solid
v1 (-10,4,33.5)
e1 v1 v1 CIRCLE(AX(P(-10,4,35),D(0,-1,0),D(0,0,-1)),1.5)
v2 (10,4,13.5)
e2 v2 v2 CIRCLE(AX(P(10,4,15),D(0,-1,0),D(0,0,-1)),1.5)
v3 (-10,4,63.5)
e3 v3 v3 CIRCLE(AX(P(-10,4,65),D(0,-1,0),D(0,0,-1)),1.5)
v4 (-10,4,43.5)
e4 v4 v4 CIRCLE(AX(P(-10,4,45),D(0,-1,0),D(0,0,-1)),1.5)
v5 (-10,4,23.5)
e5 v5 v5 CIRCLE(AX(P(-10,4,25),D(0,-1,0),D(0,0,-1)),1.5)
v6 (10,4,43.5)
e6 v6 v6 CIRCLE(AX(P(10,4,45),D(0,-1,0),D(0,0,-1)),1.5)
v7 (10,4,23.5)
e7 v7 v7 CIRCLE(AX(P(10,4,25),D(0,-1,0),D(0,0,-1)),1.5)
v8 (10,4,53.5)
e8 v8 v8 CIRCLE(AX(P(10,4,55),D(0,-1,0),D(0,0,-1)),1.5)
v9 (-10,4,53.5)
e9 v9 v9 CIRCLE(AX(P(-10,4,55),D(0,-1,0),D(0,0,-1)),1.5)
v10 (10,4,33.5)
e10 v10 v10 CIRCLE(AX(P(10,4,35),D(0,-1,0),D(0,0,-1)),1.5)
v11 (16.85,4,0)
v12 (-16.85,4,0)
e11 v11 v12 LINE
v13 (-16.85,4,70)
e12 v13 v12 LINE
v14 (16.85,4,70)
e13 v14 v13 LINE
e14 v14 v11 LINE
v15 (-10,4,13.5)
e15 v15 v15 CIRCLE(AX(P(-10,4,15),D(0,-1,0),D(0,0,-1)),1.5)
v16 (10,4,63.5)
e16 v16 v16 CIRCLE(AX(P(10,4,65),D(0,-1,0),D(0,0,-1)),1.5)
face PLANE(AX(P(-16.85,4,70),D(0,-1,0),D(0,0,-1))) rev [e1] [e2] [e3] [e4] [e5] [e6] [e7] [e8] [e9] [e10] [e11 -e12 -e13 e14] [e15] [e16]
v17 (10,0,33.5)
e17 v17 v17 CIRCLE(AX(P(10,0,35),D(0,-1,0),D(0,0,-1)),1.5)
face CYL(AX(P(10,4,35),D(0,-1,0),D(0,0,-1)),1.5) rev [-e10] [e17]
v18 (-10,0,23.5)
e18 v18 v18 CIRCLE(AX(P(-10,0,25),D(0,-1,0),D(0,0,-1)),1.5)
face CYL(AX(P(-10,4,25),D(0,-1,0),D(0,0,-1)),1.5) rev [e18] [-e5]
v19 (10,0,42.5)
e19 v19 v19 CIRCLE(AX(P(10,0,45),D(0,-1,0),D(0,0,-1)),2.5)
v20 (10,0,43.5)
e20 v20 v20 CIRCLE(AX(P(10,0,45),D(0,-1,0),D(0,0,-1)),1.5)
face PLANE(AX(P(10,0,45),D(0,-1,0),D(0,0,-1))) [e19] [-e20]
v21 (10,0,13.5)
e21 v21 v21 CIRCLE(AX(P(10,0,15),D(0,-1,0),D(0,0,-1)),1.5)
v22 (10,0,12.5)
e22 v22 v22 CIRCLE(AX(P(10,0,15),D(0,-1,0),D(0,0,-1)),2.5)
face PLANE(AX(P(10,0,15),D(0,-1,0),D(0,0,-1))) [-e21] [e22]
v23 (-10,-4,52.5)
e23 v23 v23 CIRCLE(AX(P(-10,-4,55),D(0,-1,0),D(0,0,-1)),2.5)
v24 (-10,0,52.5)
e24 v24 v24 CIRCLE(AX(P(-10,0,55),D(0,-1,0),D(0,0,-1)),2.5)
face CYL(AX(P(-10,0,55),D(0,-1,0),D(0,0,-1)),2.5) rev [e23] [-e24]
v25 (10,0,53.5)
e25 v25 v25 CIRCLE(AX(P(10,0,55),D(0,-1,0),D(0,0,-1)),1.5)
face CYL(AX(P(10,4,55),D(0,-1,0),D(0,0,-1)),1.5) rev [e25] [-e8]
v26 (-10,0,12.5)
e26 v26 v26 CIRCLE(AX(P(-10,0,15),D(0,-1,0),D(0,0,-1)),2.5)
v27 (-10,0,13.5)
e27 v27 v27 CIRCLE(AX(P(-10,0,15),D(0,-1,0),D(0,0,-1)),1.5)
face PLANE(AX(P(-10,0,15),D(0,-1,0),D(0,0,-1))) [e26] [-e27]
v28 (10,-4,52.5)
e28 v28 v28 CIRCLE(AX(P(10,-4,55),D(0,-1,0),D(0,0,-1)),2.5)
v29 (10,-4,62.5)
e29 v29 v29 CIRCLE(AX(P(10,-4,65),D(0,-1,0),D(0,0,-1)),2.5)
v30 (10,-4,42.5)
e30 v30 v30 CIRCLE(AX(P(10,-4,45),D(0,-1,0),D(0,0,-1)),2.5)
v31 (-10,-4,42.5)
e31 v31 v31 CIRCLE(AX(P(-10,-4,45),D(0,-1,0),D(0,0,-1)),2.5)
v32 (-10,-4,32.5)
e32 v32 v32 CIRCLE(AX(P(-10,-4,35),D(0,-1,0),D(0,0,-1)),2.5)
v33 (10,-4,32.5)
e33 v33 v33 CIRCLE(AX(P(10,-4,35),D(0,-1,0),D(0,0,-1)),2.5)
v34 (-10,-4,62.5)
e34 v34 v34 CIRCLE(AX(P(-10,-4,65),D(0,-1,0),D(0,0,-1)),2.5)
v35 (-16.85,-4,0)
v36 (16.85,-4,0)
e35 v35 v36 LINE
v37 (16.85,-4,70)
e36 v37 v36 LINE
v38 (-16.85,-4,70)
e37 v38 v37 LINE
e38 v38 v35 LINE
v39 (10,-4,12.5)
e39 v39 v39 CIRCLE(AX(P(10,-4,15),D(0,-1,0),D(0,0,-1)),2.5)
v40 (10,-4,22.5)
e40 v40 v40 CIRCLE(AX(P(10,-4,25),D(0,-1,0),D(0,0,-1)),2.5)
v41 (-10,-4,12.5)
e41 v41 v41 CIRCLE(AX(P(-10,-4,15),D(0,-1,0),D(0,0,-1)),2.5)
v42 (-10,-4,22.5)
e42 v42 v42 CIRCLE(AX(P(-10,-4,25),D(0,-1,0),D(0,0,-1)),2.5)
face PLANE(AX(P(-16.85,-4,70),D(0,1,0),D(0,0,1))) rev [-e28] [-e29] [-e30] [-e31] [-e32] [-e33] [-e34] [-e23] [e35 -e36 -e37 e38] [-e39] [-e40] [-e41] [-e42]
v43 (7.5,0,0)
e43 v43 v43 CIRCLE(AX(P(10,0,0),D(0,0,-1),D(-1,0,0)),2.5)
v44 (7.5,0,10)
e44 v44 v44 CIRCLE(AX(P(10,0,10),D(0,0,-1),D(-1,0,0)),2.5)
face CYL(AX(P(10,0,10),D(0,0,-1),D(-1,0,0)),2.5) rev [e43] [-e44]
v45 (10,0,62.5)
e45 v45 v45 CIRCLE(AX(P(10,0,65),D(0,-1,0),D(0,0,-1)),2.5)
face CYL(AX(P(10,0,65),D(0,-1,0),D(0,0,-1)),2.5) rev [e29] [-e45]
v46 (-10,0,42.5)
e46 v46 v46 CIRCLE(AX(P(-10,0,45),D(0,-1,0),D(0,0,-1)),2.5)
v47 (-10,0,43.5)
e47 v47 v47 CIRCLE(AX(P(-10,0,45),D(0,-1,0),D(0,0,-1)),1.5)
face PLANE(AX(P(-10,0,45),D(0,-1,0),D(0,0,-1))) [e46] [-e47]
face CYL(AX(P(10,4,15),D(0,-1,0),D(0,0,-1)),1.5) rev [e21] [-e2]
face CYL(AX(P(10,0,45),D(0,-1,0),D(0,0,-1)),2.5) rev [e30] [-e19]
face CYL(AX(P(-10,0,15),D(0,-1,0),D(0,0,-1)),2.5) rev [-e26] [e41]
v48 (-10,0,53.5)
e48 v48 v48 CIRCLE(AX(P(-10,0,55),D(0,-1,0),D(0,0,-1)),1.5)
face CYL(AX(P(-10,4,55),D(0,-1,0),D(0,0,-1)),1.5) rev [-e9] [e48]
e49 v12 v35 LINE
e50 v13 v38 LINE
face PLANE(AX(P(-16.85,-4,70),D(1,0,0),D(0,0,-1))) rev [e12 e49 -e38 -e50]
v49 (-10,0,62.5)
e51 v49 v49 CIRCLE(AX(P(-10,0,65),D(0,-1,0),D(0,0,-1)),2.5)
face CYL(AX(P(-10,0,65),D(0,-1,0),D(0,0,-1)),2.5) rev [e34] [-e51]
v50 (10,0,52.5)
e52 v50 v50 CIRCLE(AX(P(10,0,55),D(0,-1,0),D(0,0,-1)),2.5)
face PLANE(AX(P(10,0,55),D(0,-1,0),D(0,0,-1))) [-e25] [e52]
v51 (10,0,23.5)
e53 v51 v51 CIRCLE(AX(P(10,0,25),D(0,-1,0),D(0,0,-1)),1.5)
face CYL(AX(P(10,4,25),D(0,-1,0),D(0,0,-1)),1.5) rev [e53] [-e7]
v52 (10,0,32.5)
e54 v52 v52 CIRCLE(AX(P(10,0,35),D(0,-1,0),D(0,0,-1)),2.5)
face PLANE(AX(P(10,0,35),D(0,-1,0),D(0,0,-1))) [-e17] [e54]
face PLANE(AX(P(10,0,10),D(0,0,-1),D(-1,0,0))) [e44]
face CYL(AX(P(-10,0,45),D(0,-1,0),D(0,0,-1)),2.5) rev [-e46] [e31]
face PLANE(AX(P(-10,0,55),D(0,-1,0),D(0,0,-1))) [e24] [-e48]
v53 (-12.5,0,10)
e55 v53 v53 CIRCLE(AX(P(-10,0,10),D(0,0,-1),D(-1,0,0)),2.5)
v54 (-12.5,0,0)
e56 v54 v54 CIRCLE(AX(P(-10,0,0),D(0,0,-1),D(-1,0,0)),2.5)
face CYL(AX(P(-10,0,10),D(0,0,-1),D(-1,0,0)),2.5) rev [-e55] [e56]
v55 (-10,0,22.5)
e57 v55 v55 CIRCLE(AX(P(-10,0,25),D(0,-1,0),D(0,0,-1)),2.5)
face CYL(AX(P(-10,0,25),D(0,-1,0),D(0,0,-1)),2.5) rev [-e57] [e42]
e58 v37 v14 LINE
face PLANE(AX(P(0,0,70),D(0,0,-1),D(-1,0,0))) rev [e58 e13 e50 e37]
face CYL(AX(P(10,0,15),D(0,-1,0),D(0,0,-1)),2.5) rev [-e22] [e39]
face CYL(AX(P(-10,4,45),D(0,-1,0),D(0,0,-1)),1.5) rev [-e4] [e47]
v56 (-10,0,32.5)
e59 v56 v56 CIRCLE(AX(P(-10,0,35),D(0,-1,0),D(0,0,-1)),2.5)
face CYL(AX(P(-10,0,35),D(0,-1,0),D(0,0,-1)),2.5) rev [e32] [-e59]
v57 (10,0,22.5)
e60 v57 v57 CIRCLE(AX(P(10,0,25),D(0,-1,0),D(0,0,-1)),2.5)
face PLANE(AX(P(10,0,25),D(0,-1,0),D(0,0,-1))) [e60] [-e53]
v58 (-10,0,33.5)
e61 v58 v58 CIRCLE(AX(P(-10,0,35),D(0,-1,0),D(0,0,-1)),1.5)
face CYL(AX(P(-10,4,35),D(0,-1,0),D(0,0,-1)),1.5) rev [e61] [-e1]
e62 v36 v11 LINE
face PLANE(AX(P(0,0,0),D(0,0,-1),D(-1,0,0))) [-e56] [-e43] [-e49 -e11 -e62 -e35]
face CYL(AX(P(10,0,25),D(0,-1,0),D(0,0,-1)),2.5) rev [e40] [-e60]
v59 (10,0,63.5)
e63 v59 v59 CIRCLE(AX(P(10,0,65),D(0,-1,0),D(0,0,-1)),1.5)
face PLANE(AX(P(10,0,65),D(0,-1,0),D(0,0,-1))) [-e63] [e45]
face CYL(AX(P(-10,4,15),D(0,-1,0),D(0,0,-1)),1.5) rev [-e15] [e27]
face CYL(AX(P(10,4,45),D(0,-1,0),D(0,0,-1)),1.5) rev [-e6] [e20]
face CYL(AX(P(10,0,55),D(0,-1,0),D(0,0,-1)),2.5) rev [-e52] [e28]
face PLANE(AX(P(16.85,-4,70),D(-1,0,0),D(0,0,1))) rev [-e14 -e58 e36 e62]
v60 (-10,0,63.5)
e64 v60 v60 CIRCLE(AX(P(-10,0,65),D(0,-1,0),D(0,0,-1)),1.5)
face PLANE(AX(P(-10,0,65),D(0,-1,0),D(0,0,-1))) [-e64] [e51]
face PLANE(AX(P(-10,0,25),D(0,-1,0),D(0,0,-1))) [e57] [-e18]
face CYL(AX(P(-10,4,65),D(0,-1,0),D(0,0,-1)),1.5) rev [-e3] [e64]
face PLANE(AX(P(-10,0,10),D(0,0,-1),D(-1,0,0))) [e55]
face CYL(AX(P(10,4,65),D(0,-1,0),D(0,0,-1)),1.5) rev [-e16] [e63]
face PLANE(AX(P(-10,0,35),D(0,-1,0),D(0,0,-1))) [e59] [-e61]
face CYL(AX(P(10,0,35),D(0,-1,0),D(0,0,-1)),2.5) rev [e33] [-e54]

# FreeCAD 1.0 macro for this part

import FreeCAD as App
import Part
import Sketcher
Q = App.Units.Quantity


def add_polygon(sketch, points):
    """Adds a closed chain of lines whose ends are joined by coincident constraints."""
    first, n = sketch.GeometryCount, len(points)
    for a, b in zip(points, points[1:] + points[:1]):
        sketch.addGeometry(Part.LineSegment(App.Vector(*a, 0), App.Vector(*b, 0)), False)
    for i in range(n):
        sketch.addConstraint(Sketcher.Constraint("Coincident", first + i, 2, first + (i + 1) % n, 1))

doc = App.newDocument("Part")
body = doc.addObject("PartDesign::Body", "Body")

# Sketch on XY plane
sketch1 = body.newObject("Sketcher::SketchObject", "Sketch")
sketch1.AttachmentSupport = (doc.getObject("XY_Plane"), [""])
sketch1.MapMode = "FlatFace"
add_polygon(sketch1, [(-17, 4), (-17, -4), (17, -4), (17, 4)])  # lines 0-3
sketch1.addConstraint(Sketcher.Constraint("Vertical", 0))
sketch1.addConstraint(Sketcher.Constraint("Horizontal", 1))
sketch1.addConstraint(Sketcher.Constraint("Vertical", 2))
sketch1.addConstraint(Sketcher.Constraint("Horizontal", 3))
sketch1.addConstraint(Sketcher.Constraint("Symmetric", 0, 2, 2, 2, -1, 1))
sketch1.addConstraint(Sketcher.Constraint("DistanceY", 0, 2, 0, 1, Q("8 mm")))
sketch1.addConstraint(Sketcher.Constraint("DistanceX", 1, 1, 1, 2, Q("33.7 mm")))
pad1 = body.newObject("PartDesign::Pad", "Pad")
pad1.Profile = sketch1
pad1.Length = 70

# Sketch on XY plane
sketch2 = body.newObject("Sketcher::SketchObject", "Sketch001")
sketch2.AttachmentSupport = (doc.getObject("XY_Plane"), [""])
sketch2.MapMode = "FlatFace"
sketch2.addGeometry(Part.Circle(App.Vector(-10, 0, 0), App.Vector(0, 0, 1), 2.5), False)
sketch2.addGeometry(Part.Circle(App.Vector(10, 0, 0), App.Vector(0, 0, 1), 2.5), False)
sketch2.addConstraint(Sketcher.Constraint("Equal", 0, 1))
sketch2.addConstraint(Sketcher.Constraint("Symmetric", 0, 3, 1, 3, -1, 1))
sketch2.addConstraint(Sketcher.Constraint("PointOnObject", 0, 3, -1))
sketch2.addConstraint(Sketcher.Constraint("Diameter", 0, Q("5 mm")))
sketch2.addConstraint(Sketcher.Constraint("DistanceX", 0, 3, -1, 1, Q("10 mm")))
pocket1 = body.newObject("PartDesign::Pocket", "Pocket")
pocket1.Profile = sketch2
pocket1.Length = 10
pocket1.Reversed = True

# Sketch on XZ plane
sketch3 = body.newObject("Sketcher::SketchObject", "Sketch002")
sketch3.AttachmentSupport = (doc.getObject("XZ_Plane"), [""])
sketch3.MapMode = "FlatFace"
sketch3.AttachmentOffset = App.Placement(App.Vector(0, 0, 4), App.Rotation())
sketch3.addGeometry(Part.Circle(App.Vector(-10, 15, 0), App.Vector(0, 0, 1), 2.5), False)
sketch3.addGeometry(Part.Circle(App.Vector(10, 15, 0), App.Vector(0, 0, 1), 2.5), False)
sketch3.addConstraint(Sketcher.Constraint("Equal", 0, 1))
sketch3.addConstraint(Sketcher.Constraint("Symmetric", 0, 3, 1, 3, -2))
sketch3.addConstraint(Sketcher.Constraint("Diameter", 0, Q("5 mm")))
sketch3.addConstraint(Sketcher.Constraint("DistanceX", 0, 3, -1, 1, Q("10 mm")))
sketch3.addConstraint(Sketcher.Constraint("DistanceY", -1, 1, 0, 3, Q("15 mm")))
pocket2 = body.newObject("PartDesign::Pocket", "Pocket001")
pocket2.Profile = sketch3
pocket2.Length = 4

# Sketch on XZ plane
sketch4 = body.newObject("Sketcher::SketchObject", "Sketch003")
sketch4.AttachmentSupport = (doc.getObject("XZ_Plane"), [""])
sketch4.MapMode = "FlatFace"
sketch4.addGeometry(Part.Circle(App.Vector(-10, 15, 0), App.Vector(0, 0, 1), 1.5), False)
sketch4.addGeometry(Part.Circle(App.Vector(10, 15, 0), App.Vector(0, 0, 1), 1.5), False)
sketch4.addConstraint(Sketcher.Constraint("Equal", 0, 1))
sketch4.addConstraint(Sketcher.Constraint("Symmetric", 0, 3, 1, 3, -2))
sketch4.addConstraint(Sketcher.Constraint("Diameter", 0, Q("3 mm")))
sketch4.addConstraint(Sketcher.Constraint("DistanceX", 0, 3, -1, 1, Q("10 mm")))
sketch4.addConstraint(Sketcher.Constraint("DistanceY", -1, 1, 0, 3, Q("15 mm")))
pocket3 = body.newObject("PartDesign::Pocket", "Pocket002")
pocket3.Profile = sketch4
pocket3.Length = 4
doc.recompute()

linearpattern = body.newObject("PartDesign::LinearPattern", "LinearPattern")
linearpattern.Originals = [pocket2, pocket3]
linearpattern.Direction = (doc.getObject("Z_Axis"), [""])
linearpattern.Mode = "offset"
linearpattern.Offset = 10
linearpattern.Occurrences = 6
body.Tip = linearpattern

doc.recompute()
